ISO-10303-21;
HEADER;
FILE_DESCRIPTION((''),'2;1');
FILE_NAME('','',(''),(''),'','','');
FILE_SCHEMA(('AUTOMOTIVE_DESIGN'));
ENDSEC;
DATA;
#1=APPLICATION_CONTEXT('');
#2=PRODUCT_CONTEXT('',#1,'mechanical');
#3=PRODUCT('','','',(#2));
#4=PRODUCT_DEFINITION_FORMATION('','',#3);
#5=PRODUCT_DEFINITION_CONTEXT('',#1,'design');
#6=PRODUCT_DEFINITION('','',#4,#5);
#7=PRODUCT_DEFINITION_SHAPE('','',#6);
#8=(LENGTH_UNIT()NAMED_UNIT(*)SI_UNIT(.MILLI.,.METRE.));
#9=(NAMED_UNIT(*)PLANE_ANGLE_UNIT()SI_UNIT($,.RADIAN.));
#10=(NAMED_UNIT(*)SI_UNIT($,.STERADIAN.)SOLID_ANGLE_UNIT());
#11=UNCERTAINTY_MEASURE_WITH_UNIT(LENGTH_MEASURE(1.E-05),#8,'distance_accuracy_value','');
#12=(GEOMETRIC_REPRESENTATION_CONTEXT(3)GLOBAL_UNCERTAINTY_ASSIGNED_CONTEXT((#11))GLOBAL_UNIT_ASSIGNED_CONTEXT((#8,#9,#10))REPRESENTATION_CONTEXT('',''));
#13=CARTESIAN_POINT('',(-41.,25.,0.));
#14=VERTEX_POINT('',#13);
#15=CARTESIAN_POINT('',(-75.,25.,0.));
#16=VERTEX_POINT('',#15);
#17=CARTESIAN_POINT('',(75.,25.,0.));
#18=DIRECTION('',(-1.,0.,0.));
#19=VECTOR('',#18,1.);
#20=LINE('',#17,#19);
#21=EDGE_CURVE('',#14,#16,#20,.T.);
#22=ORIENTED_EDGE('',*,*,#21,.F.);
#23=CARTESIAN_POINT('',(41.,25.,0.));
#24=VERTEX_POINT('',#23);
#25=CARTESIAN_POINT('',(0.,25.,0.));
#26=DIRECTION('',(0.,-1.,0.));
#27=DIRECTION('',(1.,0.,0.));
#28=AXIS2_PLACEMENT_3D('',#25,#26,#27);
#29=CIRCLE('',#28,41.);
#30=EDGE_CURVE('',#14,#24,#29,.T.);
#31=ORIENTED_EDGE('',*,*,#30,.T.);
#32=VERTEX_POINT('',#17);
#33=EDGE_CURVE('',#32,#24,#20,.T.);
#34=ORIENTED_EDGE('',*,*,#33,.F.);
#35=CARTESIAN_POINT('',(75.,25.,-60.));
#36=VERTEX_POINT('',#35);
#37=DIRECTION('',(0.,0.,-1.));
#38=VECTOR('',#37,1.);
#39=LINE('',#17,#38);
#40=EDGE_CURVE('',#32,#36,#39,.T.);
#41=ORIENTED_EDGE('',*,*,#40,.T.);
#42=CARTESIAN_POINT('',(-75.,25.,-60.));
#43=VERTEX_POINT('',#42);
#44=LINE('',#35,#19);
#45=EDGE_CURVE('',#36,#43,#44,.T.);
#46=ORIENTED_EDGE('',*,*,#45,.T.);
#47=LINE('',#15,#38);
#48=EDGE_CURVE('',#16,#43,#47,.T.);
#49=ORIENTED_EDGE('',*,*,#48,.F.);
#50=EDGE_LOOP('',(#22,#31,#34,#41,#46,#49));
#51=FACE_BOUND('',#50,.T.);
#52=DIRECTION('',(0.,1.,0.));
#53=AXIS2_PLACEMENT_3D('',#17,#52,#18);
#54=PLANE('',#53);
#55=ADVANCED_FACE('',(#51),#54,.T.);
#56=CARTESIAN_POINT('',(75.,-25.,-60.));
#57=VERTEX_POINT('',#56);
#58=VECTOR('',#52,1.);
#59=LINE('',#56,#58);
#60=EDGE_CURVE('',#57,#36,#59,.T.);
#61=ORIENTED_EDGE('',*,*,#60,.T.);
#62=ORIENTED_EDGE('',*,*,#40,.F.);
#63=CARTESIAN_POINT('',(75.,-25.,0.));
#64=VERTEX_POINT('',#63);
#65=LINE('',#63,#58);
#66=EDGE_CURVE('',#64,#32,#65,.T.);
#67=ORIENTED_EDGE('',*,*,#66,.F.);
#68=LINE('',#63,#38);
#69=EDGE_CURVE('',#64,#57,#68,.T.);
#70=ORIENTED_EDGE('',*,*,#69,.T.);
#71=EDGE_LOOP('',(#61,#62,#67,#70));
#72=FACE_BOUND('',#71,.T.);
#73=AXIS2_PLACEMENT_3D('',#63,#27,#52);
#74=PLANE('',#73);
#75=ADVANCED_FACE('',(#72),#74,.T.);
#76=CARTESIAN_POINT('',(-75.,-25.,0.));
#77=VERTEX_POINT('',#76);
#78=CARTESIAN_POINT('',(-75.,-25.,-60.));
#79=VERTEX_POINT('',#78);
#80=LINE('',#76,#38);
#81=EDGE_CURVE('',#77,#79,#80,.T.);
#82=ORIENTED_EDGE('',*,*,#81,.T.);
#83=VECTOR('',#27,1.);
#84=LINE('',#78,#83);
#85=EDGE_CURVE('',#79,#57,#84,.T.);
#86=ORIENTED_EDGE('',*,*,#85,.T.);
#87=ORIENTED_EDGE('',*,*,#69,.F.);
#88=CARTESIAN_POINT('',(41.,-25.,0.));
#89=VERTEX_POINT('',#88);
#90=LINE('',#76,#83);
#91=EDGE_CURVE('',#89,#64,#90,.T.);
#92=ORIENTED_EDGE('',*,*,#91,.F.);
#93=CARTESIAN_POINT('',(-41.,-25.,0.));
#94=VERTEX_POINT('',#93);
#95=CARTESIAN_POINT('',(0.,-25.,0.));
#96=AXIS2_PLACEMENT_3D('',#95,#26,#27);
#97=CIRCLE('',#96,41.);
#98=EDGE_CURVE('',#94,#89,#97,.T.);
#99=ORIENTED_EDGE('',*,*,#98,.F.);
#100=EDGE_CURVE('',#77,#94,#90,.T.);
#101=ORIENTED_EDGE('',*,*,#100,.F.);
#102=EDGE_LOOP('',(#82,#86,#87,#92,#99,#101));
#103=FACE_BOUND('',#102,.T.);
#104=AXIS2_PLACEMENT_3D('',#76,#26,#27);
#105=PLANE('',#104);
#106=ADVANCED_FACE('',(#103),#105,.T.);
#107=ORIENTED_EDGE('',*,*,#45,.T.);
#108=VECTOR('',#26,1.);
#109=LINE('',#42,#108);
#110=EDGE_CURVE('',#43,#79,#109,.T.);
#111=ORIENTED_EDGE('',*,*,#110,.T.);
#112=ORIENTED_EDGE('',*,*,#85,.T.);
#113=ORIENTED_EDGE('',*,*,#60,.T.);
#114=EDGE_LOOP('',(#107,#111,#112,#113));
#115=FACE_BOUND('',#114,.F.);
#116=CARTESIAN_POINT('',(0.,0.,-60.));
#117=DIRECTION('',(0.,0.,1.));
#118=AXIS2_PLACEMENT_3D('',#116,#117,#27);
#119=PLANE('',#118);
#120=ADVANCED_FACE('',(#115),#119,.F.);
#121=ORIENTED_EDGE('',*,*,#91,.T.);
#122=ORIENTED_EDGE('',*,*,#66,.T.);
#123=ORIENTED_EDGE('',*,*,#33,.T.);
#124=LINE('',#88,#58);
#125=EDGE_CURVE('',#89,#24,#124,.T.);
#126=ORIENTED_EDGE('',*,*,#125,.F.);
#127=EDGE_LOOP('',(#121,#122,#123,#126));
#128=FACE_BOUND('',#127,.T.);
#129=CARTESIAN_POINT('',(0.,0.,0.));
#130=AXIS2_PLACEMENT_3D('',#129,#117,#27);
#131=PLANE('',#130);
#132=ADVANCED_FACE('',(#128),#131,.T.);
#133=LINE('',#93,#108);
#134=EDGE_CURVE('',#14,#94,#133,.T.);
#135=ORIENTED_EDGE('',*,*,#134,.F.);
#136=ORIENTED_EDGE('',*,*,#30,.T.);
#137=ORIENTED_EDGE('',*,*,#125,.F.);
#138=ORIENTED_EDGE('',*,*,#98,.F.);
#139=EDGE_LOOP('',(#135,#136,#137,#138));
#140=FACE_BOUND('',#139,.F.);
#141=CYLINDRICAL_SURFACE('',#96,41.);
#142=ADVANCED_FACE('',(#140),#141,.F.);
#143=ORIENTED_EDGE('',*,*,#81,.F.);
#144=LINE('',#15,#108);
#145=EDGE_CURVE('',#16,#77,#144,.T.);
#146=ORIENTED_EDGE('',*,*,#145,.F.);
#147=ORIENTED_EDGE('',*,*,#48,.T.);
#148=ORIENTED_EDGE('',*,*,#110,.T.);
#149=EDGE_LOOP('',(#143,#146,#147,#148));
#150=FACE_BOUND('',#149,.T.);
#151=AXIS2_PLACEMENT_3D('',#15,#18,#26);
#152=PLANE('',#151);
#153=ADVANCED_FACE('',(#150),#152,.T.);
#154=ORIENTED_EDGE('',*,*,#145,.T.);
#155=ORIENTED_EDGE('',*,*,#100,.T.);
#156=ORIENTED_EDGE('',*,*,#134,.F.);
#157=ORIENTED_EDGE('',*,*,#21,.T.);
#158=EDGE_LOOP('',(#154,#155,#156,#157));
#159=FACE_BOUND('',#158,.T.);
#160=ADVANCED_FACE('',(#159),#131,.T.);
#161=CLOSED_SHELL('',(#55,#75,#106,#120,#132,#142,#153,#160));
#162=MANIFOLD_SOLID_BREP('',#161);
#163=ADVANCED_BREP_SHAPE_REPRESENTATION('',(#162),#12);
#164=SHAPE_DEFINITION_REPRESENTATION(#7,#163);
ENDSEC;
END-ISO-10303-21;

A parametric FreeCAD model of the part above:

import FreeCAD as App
import Part
import Sketcher

V = App.Vector

doc = App.newDocument("Part")
body = doc.addObject("PartDesign::Body", "Body")

# Sketch on XY plane
sketch1 = body.newObject("Sketcher::SketchObject", "Sketch")
sketch1.AttachmentSupport = (doc.getObject("XY_Plane"), [""])
sketch1.MapMode = "FlatFace"
sketch1.addGeometry(Part.LineSegment(V(-75, 25, 0), V(-75, -25, 0)), False)
sketch1.addGeometry(Part.LineSegment(V(-75, -25, 0), V(75, -25, 0)), False)
sketch1.addGeometry(Part.LineSegment(V(75, -25, 0), V(75, 25, 0)), False)
sketch1.addGeometry(Part.LineSegment(V(75, 25, 0), V(-75, 25, 0)), False)
sketch1.addConstraint(Sketcher.Constraint("Coincident", 0, 2, 1, 1))
sketch1.addConstraint(Sketcher.Constraint("Coincident", 1, 2, 2, 1))
sketch1.addConstraint(Sketcher.Constraint("Coincident", 2, 2, 3, 1))
sketch1.addConstraint(Sketcher.Constraint("Coincident", 3, 2, 0, 1))
sketch1.addConstraint(Sketcher.Constraint("Vertical", 0))
sketch1.addConstraint(Sketcher.Constraint("Horizontal", 1))
sketch1.addConstraint(Sketcher.Constraint("Vertical", 2))
sketch1.addConstraint(Sketcher.Constraint("Horizontal", 3))
sketch1.addConstraint(Sketcher.Constraint("Symmetric", 0, 2, 2, 2, -1, 1))
sketch1.addConstraint(Sketcher.Constraint("DistanceX", 1, 1, 1, 2, 150.0))
sketch1.addConstraint(Sketcher.Constraint("DistanceY", 0, 2, 0, 1, 50.0))
pad1 = body.newObject("PartDesign::Pad", "Pad")
pad1.Profile = sketch1
pad1.Length = 60
pad1.Reversed = True

# Sketch on XZ plane
sketch2 = body.newObject("Sketcher::SketchObject", "Sketch001")
sketch2.AttachmentSupport = (doc.getObject("XZ_Plane"), [""])
sketch2.MapMode = "FlatFace"
sketch2.AttachmentOffset = App.Placement(V(0, 0, 25), App.Rotation())
sketch2.addGeometry(Part.Circle(V(0, 0, 0), V(0, 0, 1), 41), False)
sketch2.addConstraint(Sketcher.Constraint("Coincident", 0, 3, -1, 1))
sketch2.addConstraint(Sketcher.Constraint("Diameter", 0, 82.0))
pocket1 = body.newObject("PartDesign::Pocket", "Pocket")
pocket1.Profile = sketch2
pocket1.Length = 50

doc.recompute()
